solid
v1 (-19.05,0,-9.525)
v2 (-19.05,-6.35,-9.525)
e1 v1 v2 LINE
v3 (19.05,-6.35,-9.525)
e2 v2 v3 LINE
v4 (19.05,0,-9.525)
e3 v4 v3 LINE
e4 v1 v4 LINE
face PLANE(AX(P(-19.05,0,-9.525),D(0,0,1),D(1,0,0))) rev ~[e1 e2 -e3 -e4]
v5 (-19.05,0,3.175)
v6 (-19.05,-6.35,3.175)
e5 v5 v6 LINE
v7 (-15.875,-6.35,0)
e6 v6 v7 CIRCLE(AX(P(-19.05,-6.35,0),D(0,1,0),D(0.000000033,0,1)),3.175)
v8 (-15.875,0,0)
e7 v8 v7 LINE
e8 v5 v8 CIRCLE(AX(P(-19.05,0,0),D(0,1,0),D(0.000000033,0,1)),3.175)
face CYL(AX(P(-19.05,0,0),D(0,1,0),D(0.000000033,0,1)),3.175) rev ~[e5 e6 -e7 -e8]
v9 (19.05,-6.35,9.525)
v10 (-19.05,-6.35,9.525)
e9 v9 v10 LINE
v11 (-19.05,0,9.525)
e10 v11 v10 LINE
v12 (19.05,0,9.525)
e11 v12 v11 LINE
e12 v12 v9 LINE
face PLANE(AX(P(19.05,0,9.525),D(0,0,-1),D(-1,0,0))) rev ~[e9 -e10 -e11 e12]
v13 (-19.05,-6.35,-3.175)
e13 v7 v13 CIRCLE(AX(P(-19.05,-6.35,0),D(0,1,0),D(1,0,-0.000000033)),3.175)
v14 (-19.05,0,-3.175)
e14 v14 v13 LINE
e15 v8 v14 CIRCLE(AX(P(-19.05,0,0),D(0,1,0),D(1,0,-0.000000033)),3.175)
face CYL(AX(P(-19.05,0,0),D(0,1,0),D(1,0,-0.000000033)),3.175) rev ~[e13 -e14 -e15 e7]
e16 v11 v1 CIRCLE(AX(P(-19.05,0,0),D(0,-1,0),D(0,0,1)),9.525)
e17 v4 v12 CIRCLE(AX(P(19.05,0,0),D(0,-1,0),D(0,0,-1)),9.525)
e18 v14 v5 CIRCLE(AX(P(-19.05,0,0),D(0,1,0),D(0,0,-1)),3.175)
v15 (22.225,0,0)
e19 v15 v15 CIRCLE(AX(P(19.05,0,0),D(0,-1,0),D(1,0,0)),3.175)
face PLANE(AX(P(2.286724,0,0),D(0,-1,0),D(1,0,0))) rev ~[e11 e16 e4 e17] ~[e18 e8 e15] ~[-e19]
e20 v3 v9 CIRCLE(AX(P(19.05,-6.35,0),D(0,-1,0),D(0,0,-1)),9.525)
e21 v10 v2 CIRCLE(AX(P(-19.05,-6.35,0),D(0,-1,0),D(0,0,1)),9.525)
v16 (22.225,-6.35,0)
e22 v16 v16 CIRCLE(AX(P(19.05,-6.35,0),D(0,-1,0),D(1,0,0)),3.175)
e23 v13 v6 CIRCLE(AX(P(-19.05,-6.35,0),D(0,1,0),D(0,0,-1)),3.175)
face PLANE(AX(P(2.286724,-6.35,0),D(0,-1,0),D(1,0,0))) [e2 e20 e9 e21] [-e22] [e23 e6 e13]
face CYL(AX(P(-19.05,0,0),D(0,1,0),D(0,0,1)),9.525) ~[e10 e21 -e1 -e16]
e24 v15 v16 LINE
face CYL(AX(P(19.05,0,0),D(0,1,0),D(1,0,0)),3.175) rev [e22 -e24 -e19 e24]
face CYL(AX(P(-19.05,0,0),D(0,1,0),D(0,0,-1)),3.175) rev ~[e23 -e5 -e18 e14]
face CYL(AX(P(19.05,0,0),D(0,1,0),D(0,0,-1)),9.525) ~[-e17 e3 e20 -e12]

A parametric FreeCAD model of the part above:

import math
import FreeCAD as App
import Part
import Sketcher

V = App.Vector
Q = App.Units.Quantity

doc = App.newDocument("Part")
params = doc.addObject("Spreadsheet::Sheet", "Params")
for row, (alias, value) in enumerate([
    ("sketch1_diameter", "0.25 in"),
    ("sketch1_width", "1.5 in"),
    ("sketch1_radius", "0.375 in"),
    ("pad1_length", "0.25 in"),
], start=1):
    params.set(f"A{row}", alias)
    params.set(f"B{row}", "=" + value)
    params.setAlias(f"B{row}", alias)

body = doc.addObject("PartDesign::Body", "Body")

# Sketch on XZ plane
sketch1 = body.newObject("Sketcher::SketchObject", "Sketch")
sketch1.AttachmentSupport = (doc.getObject("XZ_Plane"), [""])
sketch1.MapMode = "FlatFace"
sketch1.addGeometry([
    Part.LineSegment(V(19.1, 9.5, 0), V(-19.1, 9.5, 0)),  # 0
    Part.ArcOfCircle(Part.Circle(V(-19.1, 0, 0), V(0, 0, 1), 9.5), math.radians(90), math.radians(270)),  # 1
    Part.LineSegment(V(-19.1, -9.5, 0), V(19.1, -9.5, 0)),  # 2
    Part.ArcOfCircle(Part.Circle(V(19.1, 0, 0), V(0, 0, 1), 9.5), math.radians(-90), math.radians(90)),  # 3
    Part.ArcOfCircle(Part.Circle(V(-19.1, 0, 0), V(0, 0, 1), 3.2), math.radians(0), math.radians(90)),  # 4
    Part.ArcOfCircle(Part.Circle(V(-19.1, 0, 0), V(0, 0, 1), 3.2), math.radians(-90), math.radians(0)),  # 5
    Part.ArcOfCircle(Part.Circle(V(-19.1, 0, 0), V(0, 0, 1), 3.2), math.radians(90), math.radians(270)),  # 6
    Part.Circle(V(19.1, 0, 0), V(0, 0, 1), 3.2),  # 7
], False)
sketch1.addConstraint([
    Sketcher.Constraint("Tangent", 0, 2, 1, 1),
    Sketcher.Constraint("Tangent", 1, 2, 2, 1),
    Sketcher.Constraint("Tangent", 2, 2, 3, 1),
    Sketcher.Constraint("Tangent", 3, 2, 0, 1),
    Sketcher.Constraint("Tangent", 4, 1, 5, 2),
    Sketcher.Constraint("Tangent", 5, 1, 6, 2),
    Sketcher.Constraint("Tangent", 6, 1, 4, 2),
    Sketcher.Constraint("Horizontal", 0),
    Sketcher.Constraint("Horizontal", 2),
    Sketcher.Constraint("Coincident", 4, 3, 1, 3),
    Sketcher.Constraint("Coincident", 7, 3, 3, 3),
    Sketcher.Constraint("Equal", 6, 7),
    Sketcher.Constraint("Symmetric", 1, 3, 3, 3, -1, 1),
    Sketcher.Constraint("PointOnObject", 4, 1, -1),
    Sketcher.Constraint("Vertical", 1, 2, 5, 1),
    Sketcher.Constraint("Vertical", 5, 1, 6, 1),
    Sketcher.Constraint("Diameter", 7, Q("0.25 in")),
    Sketcher.Constraint("DistanceX", 0, 2, 0, 1, Q("1.5 in")),
    Sketcher.Constraint("Radius", 1, Q("0.375 in")),
])
sketch1.setExpression("Constraints[16]", "Params.sketch1_diameter")
sketch1.setExpression("Constraints[17]", "Params.sketch1_width")
sketch1.setExpression("Constraints[18]", "Params.sketch1_radius")
pad1 = body.newObject("PartDesign::Pad", "Pad")
pad1.Profile = sketch1
pad1.setExpression("Length", "Params.pad1_length")

doc.recompute()
